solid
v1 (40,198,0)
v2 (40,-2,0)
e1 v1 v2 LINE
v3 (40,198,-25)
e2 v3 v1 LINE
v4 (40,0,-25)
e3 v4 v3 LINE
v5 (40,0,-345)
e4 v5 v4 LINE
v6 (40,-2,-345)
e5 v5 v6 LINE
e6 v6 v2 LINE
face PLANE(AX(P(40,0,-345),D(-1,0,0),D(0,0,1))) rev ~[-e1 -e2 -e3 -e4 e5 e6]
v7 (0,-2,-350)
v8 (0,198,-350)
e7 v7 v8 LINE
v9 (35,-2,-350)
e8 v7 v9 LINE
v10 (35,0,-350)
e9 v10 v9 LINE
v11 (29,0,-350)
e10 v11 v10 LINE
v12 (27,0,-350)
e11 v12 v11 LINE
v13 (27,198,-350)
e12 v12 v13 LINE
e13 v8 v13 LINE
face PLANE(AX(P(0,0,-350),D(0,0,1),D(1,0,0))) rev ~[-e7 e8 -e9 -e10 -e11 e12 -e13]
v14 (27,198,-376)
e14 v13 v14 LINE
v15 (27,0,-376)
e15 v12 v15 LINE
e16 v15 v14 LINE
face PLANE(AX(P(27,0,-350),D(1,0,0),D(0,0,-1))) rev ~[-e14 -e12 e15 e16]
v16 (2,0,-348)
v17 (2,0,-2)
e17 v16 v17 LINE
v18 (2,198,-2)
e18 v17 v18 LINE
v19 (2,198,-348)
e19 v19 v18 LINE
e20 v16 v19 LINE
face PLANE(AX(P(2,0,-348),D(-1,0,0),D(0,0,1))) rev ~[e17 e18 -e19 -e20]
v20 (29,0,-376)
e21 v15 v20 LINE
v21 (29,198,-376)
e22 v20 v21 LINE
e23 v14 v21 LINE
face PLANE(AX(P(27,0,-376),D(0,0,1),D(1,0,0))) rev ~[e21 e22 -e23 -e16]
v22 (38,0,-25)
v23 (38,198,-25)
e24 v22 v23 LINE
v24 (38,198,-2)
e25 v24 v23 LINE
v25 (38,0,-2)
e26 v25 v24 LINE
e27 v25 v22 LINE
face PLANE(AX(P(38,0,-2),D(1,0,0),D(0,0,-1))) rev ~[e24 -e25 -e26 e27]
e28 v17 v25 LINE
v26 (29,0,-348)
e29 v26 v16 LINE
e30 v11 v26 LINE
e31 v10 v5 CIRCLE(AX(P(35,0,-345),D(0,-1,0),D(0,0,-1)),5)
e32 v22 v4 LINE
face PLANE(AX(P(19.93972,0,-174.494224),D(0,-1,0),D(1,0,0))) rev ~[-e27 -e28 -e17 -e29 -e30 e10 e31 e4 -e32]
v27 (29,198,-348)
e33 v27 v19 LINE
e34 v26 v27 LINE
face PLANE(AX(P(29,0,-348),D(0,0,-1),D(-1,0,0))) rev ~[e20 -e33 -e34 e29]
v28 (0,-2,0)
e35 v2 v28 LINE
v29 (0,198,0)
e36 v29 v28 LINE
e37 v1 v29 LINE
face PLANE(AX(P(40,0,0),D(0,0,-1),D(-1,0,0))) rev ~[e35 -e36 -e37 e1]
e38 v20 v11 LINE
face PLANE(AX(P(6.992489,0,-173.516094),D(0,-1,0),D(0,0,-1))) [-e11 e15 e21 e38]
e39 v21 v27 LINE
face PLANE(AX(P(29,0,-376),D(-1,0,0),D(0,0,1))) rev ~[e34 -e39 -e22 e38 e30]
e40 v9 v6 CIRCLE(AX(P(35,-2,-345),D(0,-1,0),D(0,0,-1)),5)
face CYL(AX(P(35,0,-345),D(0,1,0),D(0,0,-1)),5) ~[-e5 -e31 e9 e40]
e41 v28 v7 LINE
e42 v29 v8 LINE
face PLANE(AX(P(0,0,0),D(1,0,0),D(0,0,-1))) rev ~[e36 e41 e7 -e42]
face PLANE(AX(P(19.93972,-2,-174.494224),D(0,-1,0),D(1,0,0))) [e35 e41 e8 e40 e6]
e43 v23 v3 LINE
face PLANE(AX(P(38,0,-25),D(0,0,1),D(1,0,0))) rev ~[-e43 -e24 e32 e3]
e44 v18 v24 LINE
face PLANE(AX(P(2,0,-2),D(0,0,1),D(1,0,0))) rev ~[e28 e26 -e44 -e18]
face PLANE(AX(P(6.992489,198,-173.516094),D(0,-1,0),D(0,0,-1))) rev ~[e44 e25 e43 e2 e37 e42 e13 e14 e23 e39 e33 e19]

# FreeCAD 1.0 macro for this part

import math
import FreeCAD as App
import Part
import Sketcher
from FreeCAD import Vector

doc = App.newDocument("Part")
body = doc.addObject("PartDesign::Body", "Body")

# Sketch on XZ plane
sketch1 = body.newObject("Sketcher::SketchObject", "Sketch")
sketch1.AttachmentSupport = (doc.getObject("XZ_Plane"), [""])
sketch1.MapMode = "FlatFace"
sketch1.addGeometry([
    Part.LineSegment(Vector(40, 0, 0), Vector(0, 0, 0)),  # 0
    Part.LineSegment(Vector(0, 0, 0), Vector(0, -350, 0)),  # 1
    Part.LineSegment(Vector(0, -350, 0), Vector(27, -350, 0)),  # 2
    Part.LineSegment(Vector(27, -350, 0), Vector(27, -376, 0)),  # 3
    Part.LineSegment(Vector(27, -376, 0), Vector(29, -376, 0)),  # 4
    Part.LineSegment(Vector(29, -376, 0), Vector(29, -348, 0)),  # 5
    Part.LineSegment(Vector(29, -348, 0), Vector(2, -348, 0)),  # 6
    Part.LineSegment(Vector(2, -348, 0), Vector(2, -2, 0)),  # 7
    Part.LineSegment(Vector(2, -2, 0), Vector(38, -2, 0)),  # 8
    Part.LineSegment(Vector(38, -2, 0), Vector(38, -25, 0)),  # 9
    Part.LineSegment(Vector(38, -25, 0), Vector(40, -25, 0)),  # 10
    Part.LineSegment(Vector(40, -25, 0), Vector(40, 0, 0)),  # 11
], False)
sketch1.addConstraint([
    Sketcher.Constraint("Coincident", 0, 2, 1, 1),
    Sketcher.Constraint("Coincident", 1, 2, 2, 1),
    Sketcher.Constraint("Coincident", 2, 2, 3, 1),
    Sketcher.Constraint("Coincident", 3, 2, 4, 1),
    Sketcher.Constraint("Coincident", 4, 2, 5, 1),
    Sketcher.Constraint("Coincident", 5, 2, 6, 1),
    Sketcher.Constraint("Coincident", 6, 2, 7, 1),
    Sketcher.Constraint("Coincident", 7, 2, 8, 1),
    Sketcher.Constraint("Coincident", 8, 2, 9, 1),
    Sketcher.Constraint("Coincident", 9, 2, 10, 1),
    Sketcher.Constraint("Coincident", 10, 2, 11, 1),
    Sketcher.Constraint("Coincident", 11, 2, 0, 1),
    Sketcher.Constraint("Horizontal", 0),
    Sketcher.Constraint("Vertical", 1),
    Sketcher.Constraint("Horizontal", 2),
    Sketcher.Constraint("Vertical", 3),
    Sketcher.Constraint("Horizontal", 4),
    Sketcher.Constraint("Vertical", 5),
    Sketcher.Constraint("Horizontal", 6),
    Sketcher.Constraint("Vertical", 7),
    Sketcher.Constraint("Horizontal", 8),
    Sketcher.Constraint("Vertical", 9),
    Sketcher.Constraint("Horizontal", 10),
    Sketcher.Constraint("Vertical", 11),
    Sketcher.Constraint("Coincident", 0, 2, -1, 1),
    Sketcher.Constraint("Equal", 2, 6),
    Sketcher.Constraint("Equal", 4, 10),
    Sketcher.Constraint("DistanceX", 0, 2, 0, 1, 40.0),
    Sketcher.Constraint("DistanceX", 2, 1, 2, 2, 27.0),
    Sketcher.Constraint("DistanceX", 4, 1, 4, 2, 2.0),
    Sketcher.Constraint("DistanceY", 1, 2, 1, 1, 350.0),
    Sketcher.Constraint("DistanceY", 3, 2, 3, 1, 26.0),
    Sketcher.Constraint("DistanceY", 5, 1, 5, 2, 28.0),
    Sketcher.Constraint("DistanceY", 7, 1, 7, 2, 346.0),
    Sketcher.Constraint("DistanceY", 9, 2, 9, 1, 23.0),
])

# Sketch on XY plane
sketch2 = body.newObject("Sketcher::SketchObject", "Sketch001")
sketch2.AttachmentSupport = (doc.getObject("XY_Plane"), [""])
sketch2.MapMode = "FlatFace"
sketch2.addGeometry(Part.LineSegment(Vector(0, 0, 0), Vector(0, 198, 0)), False)
sketch2.addConstraint([
    Sketcher.Constraint("Vertical", 0),
    Sketcher.Constraint("Coincident", 0, 1, -1, 1),
    Sketcher.Constraint("DistanceY", 0, 1, 0, 2, 198.0),
])
doc.recompute()

additivepipe = body.newObject("PartDesign::AdditivePipe", "AdditivePipe")
additivepipe.Profile = sketch1
additivepipe.Spine = (sketch2, ["Edge1"])

# Sketch on XZ plane
sketch3 = body.newObject("Sketcher::SketchObject", "Sketch002")
sketch3.AttachmentSupport = (doc.getObject("XZ_Plane"), [""])
sketch3.MapMode = "FlatFace"
sketch3.addGeometry([
    Part.LineSegment(Vector(40, -345, 0), Vector(40, 0, 0)),  # 0
    Part.LineSegment(Vector(40, 0, 0), Vector(0, 0, 0)),  # 1
    Part.LineSegment(Vector(0, 0, 0), Vector(0, -350, 0)),  # 2
    Part.LineSegment(Vector(0, -350, 0), Vector(35, -350, 0)),  # 3
    Part.ArcOfCircle(Part.Circle(Vector(35, -345, 0), Vector(0, 0, 1), 5), math.radians(-90), math.radians(0)),  # 4
], False)
sketch3.addConstraint([
    Sketcher.Constraint("Coincident", 0, 2, 1, 1),
    Sketcher.Constraint("Coincident", 1, 2, 2, 1),
    Sketcher.Constraint("Coincident", 2, 2, 3, 1),
    Sketcher.Constraint("Tangent", 3, 2, 4, 1),
    Sketcher.Constraint("Tangent", 4, 2, 0, 1),
    Sketcher.Constraint("Vertical", 0),
    Sketcher.Constraint("Horizontal", 1),
    Sketcher.Constraint("Vertical", 2),
    Sketcher.Constraint("Horizontal", 3),
    Sketcher.Constraint("Coincident", 1, 2, -1, 1),
    Sketcher.Constraint("Radius", 4, 5.0),
    Sketcher.Constraint("DistanceX", 1, 2, 1, 1, 40.0),
    Sketcher.Constraint("DistanceY", 0, 1, 0, 2, 345.0),
])
pad1 = body.newObject("PartDesign::Pad", "Pad")
pad1.Profile = sketch3
pad1.Length = 2

doc.recompute()
